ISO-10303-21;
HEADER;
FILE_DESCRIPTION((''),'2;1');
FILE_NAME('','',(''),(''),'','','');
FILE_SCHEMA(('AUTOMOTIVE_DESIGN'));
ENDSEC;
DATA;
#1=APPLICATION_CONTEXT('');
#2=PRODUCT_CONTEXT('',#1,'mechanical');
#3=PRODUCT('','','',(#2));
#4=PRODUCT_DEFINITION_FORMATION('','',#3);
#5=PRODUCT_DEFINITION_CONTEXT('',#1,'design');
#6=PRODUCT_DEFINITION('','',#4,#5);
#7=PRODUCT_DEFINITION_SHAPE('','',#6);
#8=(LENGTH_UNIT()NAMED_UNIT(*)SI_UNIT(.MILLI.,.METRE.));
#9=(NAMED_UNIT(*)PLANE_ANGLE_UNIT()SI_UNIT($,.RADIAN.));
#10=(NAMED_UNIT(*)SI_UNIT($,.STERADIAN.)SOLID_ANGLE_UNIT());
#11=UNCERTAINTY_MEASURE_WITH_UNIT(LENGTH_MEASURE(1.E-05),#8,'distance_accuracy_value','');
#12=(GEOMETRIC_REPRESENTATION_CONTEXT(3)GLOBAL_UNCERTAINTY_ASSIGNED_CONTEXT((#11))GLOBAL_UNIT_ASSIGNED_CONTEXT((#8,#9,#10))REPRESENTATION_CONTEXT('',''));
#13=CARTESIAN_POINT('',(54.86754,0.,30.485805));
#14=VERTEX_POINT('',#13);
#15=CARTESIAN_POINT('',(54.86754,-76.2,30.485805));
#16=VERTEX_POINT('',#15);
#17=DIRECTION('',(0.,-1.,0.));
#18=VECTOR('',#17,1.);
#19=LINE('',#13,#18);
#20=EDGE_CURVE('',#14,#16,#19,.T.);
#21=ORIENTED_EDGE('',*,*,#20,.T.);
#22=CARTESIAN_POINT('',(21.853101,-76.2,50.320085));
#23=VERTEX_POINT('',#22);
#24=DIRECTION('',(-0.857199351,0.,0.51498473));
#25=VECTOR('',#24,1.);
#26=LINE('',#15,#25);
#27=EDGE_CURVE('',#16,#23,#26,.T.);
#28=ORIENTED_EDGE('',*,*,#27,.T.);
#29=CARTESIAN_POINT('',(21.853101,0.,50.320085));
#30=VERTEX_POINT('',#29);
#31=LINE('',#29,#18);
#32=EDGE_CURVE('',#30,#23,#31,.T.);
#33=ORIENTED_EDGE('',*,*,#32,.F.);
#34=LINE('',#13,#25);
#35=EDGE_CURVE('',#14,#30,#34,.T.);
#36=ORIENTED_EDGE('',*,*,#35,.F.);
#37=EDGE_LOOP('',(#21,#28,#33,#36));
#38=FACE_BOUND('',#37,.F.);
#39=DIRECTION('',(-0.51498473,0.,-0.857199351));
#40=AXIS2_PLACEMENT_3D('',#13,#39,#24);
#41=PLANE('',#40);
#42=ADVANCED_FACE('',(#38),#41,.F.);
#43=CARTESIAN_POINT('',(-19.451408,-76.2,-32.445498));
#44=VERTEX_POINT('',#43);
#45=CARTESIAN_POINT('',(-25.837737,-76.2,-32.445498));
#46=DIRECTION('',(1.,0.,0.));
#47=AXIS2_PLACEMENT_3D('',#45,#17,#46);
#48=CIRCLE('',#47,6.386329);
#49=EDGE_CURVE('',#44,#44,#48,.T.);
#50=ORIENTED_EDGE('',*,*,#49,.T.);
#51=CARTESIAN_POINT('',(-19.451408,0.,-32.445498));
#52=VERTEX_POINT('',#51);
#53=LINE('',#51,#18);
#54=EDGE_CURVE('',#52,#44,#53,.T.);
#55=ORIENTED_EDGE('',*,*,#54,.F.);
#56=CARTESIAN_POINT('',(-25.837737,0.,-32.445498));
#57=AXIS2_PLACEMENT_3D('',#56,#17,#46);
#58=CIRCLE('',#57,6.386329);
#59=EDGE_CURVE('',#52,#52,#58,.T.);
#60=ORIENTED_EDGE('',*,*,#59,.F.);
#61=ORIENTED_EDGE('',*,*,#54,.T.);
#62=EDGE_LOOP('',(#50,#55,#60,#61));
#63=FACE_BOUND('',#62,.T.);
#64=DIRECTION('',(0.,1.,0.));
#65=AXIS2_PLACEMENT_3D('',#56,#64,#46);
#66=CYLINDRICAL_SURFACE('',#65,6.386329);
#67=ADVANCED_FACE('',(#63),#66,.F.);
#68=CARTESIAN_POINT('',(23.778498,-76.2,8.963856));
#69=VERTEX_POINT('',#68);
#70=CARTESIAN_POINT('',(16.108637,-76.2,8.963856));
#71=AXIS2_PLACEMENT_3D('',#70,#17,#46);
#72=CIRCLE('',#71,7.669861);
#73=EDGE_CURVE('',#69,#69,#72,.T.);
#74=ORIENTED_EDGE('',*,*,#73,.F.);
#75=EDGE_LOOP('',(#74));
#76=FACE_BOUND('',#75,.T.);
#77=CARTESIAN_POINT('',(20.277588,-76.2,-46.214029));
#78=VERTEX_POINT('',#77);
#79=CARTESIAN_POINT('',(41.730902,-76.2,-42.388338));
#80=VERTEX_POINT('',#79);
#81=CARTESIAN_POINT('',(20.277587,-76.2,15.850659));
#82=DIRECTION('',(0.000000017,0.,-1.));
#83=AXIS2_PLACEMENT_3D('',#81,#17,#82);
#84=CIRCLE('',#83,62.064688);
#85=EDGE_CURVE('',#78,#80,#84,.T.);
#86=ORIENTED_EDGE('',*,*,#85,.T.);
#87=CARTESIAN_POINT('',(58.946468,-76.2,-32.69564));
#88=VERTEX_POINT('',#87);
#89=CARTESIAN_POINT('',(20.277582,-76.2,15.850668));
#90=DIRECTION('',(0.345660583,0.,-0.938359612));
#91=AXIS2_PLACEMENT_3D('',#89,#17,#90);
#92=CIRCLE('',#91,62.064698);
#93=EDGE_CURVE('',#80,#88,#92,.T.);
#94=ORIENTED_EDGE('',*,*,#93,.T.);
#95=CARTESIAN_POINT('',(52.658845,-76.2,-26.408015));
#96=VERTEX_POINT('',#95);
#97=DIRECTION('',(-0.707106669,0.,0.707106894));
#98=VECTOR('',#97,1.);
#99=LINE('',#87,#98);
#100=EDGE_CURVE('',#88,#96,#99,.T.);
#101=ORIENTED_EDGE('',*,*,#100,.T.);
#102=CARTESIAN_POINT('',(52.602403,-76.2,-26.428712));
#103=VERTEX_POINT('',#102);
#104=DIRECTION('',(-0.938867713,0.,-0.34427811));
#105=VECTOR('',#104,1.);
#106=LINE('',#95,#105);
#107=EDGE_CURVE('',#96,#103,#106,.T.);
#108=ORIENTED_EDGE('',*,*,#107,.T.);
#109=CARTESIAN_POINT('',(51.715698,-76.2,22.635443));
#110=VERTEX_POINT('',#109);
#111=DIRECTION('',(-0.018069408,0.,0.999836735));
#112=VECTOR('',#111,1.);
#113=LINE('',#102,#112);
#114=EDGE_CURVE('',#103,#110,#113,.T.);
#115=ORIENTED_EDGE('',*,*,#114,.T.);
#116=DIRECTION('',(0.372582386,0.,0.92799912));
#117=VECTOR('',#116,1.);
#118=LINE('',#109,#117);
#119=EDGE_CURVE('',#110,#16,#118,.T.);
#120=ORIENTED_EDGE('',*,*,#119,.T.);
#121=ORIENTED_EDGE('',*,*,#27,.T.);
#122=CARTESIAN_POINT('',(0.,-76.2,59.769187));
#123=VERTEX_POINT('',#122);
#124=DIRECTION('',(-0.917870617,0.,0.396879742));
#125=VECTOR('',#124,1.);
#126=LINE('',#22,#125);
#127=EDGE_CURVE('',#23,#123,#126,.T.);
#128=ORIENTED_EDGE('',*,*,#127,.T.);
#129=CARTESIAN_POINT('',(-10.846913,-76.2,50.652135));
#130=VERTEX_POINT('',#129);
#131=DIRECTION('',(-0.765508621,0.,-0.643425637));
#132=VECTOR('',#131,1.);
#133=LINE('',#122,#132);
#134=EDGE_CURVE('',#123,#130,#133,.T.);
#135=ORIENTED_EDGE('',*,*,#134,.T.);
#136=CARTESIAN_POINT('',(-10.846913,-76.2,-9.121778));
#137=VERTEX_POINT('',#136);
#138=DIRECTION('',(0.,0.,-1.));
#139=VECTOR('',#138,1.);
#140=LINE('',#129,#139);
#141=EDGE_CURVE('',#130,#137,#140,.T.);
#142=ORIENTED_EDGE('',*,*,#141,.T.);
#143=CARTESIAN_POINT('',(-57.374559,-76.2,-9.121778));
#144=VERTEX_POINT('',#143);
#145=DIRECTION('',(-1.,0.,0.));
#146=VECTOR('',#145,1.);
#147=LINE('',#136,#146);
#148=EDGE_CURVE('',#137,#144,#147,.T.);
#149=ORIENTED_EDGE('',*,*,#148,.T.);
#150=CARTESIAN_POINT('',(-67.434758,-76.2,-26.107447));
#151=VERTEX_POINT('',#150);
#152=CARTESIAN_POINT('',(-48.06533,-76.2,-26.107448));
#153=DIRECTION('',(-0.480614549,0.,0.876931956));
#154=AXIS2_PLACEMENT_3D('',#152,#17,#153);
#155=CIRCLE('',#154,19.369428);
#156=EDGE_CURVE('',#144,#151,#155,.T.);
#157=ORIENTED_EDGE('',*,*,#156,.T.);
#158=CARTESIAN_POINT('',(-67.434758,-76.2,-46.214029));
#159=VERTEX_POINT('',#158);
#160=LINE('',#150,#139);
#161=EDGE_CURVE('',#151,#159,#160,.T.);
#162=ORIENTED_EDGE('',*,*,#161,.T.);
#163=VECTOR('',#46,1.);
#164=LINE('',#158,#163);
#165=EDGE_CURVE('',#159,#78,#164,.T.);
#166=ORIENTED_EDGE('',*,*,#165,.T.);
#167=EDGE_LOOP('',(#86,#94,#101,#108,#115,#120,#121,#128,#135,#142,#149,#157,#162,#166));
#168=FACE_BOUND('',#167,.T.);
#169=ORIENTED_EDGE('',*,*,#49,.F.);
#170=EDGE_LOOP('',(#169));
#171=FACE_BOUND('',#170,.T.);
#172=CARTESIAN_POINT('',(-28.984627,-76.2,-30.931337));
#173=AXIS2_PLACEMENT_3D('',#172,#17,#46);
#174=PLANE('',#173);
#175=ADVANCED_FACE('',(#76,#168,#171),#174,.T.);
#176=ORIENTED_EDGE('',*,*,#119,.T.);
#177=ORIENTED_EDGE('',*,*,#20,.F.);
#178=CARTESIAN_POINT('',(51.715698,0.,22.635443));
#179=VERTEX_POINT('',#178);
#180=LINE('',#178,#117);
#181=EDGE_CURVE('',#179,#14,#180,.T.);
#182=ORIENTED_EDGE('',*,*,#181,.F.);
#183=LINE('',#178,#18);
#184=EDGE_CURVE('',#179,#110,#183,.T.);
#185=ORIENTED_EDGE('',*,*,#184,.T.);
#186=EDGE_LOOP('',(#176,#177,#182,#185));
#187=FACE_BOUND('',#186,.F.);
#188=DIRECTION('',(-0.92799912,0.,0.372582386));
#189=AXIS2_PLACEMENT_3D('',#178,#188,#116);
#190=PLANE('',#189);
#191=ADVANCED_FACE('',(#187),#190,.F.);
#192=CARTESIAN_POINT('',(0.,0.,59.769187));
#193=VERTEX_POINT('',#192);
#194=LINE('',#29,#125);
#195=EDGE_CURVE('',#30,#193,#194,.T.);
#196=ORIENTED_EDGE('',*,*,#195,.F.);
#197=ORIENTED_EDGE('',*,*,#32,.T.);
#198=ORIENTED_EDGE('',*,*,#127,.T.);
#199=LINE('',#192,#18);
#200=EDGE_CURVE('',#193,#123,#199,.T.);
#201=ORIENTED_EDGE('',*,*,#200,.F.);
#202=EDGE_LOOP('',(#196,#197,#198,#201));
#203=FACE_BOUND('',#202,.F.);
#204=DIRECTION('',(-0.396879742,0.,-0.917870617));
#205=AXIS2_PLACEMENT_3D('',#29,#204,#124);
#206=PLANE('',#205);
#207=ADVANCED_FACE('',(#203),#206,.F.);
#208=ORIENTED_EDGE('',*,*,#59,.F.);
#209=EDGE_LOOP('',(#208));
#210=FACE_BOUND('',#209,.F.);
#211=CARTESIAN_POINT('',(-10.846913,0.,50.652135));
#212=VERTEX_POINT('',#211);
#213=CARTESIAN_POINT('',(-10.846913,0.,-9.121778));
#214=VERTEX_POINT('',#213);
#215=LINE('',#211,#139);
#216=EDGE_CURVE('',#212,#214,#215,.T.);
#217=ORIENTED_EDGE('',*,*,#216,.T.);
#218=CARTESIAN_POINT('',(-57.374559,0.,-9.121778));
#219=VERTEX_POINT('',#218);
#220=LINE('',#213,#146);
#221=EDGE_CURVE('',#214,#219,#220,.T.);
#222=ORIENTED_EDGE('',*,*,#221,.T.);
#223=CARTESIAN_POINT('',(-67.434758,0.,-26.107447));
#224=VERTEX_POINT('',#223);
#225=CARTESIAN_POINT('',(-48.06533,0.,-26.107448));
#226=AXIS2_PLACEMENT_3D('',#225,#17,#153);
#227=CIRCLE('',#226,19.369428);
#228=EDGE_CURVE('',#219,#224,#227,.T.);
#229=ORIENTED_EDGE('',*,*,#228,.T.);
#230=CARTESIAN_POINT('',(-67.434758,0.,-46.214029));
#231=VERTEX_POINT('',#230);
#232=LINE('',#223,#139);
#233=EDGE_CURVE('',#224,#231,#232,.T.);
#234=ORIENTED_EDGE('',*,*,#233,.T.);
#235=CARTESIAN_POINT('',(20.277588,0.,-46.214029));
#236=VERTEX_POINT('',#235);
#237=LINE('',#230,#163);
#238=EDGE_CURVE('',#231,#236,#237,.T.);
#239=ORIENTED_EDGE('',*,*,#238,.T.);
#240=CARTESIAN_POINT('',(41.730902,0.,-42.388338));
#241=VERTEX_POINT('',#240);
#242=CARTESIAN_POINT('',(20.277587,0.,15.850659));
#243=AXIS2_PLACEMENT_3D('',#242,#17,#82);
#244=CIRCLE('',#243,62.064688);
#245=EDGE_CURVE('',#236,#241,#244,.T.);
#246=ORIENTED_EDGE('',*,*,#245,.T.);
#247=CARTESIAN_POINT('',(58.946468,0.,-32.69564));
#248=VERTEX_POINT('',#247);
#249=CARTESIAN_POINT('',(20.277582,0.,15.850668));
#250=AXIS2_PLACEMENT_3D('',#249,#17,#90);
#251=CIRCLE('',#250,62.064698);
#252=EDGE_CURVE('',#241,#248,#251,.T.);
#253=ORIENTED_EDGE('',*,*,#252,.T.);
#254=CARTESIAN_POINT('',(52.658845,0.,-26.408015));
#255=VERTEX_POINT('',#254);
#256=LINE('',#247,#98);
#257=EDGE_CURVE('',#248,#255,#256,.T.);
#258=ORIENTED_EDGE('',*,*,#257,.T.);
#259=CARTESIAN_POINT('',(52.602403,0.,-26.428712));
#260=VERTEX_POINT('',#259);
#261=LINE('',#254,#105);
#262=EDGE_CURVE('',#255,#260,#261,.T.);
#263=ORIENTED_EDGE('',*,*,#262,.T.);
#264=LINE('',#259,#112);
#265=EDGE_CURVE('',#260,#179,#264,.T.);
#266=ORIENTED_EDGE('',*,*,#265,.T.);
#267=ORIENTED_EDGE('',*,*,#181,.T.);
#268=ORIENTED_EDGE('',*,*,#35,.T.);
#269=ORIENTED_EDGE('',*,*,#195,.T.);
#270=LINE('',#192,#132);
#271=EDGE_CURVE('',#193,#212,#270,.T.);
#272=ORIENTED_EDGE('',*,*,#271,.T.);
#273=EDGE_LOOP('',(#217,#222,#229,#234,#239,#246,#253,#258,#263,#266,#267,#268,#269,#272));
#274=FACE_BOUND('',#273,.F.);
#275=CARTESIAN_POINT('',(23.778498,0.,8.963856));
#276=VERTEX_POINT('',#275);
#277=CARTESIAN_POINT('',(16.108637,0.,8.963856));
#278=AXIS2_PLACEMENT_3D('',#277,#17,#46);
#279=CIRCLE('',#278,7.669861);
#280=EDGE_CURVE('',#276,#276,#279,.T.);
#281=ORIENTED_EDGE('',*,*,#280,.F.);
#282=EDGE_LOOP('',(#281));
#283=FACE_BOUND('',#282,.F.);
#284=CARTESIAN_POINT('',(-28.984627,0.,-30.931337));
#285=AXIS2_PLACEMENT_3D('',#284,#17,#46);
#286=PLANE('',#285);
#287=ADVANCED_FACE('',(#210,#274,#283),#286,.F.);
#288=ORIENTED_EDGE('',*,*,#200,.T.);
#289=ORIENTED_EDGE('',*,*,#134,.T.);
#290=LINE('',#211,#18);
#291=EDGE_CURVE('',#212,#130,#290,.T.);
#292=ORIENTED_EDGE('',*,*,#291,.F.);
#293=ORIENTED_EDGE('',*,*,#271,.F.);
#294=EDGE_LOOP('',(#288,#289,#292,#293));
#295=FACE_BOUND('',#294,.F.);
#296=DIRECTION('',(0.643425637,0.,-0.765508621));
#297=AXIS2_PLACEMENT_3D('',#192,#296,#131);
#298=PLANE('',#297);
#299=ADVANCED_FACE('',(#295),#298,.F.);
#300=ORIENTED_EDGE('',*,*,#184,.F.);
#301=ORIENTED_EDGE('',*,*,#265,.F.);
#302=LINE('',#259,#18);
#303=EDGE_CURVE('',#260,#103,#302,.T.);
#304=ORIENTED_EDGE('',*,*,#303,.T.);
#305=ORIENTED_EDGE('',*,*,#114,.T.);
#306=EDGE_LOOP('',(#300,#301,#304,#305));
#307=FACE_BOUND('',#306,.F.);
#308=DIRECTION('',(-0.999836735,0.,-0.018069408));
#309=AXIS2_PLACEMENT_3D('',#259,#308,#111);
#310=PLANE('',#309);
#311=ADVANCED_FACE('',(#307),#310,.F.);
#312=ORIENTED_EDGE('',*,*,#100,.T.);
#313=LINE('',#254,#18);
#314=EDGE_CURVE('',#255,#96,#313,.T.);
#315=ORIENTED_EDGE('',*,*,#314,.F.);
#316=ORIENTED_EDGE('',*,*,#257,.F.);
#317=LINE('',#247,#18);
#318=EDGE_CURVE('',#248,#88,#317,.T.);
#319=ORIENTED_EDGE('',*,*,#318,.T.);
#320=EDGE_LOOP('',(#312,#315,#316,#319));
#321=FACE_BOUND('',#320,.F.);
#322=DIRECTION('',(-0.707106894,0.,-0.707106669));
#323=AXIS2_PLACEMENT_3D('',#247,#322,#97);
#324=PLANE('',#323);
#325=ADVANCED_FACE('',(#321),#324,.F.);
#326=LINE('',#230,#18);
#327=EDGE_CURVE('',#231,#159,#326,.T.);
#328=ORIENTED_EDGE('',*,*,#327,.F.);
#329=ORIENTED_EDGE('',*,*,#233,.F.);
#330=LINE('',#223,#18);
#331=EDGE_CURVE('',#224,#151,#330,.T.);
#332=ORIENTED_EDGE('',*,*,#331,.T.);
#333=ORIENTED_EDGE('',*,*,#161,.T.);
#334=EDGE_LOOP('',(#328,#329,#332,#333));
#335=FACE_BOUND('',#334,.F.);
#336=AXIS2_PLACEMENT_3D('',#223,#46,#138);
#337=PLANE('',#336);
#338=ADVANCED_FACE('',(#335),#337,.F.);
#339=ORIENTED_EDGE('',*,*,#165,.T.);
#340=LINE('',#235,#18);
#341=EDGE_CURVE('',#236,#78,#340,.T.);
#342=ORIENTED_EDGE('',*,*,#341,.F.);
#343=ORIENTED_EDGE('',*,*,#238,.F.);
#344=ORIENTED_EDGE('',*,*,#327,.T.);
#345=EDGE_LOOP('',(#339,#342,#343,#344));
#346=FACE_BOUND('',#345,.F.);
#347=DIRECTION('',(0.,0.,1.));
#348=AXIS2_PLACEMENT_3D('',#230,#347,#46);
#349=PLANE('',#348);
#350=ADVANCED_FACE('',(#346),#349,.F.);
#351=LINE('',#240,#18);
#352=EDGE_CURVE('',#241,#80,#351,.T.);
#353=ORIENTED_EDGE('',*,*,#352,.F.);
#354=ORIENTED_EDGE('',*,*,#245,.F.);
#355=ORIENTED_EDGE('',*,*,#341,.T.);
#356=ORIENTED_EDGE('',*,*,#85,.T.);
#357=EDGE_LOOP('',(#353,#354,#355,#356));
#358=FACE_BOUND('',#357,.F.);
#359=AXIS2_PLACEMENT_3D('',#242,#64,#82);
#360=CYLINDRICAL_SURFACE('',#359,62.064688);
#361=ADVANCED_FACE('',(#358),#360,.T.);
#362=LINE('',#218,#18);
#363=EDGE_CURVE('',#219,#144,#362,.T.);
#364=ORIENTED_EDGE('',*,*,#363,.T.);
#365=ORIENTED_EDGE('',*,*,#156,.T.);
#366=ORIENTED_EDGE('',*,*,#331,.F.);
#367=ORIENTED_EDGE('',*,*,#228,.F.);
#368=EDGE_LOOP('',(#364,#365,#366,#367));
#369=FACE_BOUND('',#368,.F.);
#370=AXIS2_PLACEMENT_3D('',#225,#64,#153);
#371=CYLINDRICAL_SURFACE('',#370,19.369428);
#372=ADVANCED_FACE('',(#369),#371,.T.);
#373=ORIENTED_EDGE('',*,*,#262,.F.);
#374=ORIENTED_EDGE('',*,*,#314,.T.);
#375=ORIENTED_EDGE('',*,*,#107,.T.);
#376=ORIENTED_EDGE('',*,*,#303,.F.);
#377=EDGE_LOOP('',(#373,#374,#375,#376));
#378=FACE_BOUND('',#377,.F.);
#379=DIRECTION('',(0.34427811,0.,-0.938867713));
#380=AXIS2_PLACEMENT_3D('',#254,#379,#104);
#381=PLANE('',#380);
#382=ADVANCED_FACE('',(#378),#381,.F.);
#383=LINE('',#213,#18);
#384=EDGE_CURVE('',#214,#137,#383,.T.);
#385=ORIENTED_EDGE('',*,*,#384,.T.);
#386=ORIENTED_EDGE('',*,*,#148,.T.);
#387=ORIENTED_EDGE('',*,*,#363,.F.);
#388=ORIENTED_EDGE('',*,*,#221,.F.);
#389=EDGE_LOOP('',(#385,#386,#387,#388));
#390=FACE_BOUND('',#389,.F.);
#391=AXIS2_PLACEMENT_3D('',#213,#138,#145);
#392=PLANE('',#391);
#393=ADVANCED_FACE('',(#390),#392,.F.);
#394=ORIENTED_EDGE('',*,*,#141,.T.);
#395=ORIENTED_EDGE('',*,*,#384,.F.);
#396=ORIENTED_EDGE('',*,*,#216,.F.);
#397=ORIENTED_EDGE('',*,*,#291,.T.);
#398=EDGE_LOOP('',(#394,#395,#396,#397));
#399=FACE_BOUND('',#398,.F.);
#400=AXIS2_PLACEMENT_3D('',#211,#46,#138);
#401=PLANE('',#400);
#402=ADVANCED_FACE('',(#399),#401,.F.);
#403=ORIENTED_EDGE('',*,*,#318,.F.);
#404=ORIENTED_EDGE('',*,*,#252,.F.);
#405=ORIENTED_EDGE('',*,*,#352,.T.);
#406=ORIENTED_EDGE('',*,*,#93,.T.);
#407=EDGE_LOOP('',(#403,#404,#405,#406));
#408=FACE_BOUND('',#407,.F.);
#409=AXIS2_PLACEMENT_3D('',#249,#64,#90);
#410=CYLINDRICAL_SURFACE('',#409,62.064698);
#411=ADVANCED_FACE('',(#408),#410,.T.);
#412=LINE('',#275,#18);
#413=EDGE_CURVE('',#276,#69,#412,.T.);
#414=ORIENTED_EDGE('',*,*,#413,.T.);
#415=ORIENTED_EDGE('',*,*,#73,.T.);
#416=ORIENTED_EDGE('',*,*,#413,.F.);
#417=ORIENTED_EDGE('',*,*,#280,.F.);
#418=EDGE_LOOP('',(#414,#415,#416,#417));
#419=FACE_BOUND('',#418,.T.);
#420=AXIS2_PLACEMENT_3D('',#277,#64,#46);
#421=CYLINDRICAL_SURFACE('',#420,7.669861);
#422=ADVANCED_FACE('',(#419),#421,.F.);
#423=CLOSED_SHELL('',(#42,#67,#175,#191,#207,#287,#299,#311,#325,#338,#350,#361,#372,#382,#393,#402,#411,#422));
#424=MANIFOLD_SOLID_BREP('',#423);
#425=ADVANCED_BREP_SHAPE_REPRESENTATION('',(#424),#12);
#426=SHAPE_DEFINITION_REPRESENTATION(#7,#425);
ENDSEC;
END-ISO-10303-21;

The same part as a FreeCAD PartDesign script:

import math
import FreeCAD as App
import Part
import Sketcher
from FreeCAD import Vector
Q = App.Units.Quantity

doc = App.newDocument("Part")
body = doc.addObject("PartDesign::Body", "Body")

# Sketch on XZ plane
sketch1 = doc.addObject("Sketcher::SketchObject", "Sketch")
body.addObject(sketch1)
sketch1.AttachmentSupport = (doc.XZ_Plane, [""])
sketch1.MapMode = "FlatFace"
sketch1.addGeometry([
    Part.LineSegment(Vector(-67.434758, -46.214029, 0), Vector(20.277588, -46.214029, 0)),  # 0
    Part.ArcOfCircle(Part.Circle(Vector(20.277587, 15.850659, 0), Vector(0, 0, 1), 62.064688), math.radians(-89.999999), math.radians(-69.777876)),  # 1
    Part.ArcOfCircle(Part.Circle(Vector(20.277582, 15.850668, 0), Vector(0, 0, 1), 62.064698), math.radians(-69.777875), math.radians(-51.461413)),  # 2
    Part.LineSegment(Vector(58.946468, -32.69564, 0), Vector(52.658845, -26.408015, 0)),  # 3
    Part.LineSegment(Vector(52.658845, -26.408015, 0), Vector(52.602403, -26.428712, 0)),  # 4
    Part.LineSegment(Vector(52.602403, -26.428712, 0), Vector(51.715698, 22.635443, 0)),  # 5
    Part.LineSegment(Vector(51.715698, 22.635443, 0), Vector(54.86754, 30.485805, 0)),  # 6
    Part.LineSegment(Vector(54.86754, 30.485805, 0), Vector(21.853101, 50.320085, 0)),  # 7
    Part.LineSegment(Vector(21.853101, 50.320085, 0), Vector(0, 59.769187, 0)),  # 8
    Part.LineSegment(Vector(0, 59.769187, 0), Vector(-10.846913, 50.652135, 0)),  # 9
    Part.LineSegment(Vector(-10.846913, 50.652135, 0), Vector(-10.846913, -9.121778, 0)),  # 10
    Part.LineSegment(Vector(-10.846913, -9.121778, 0), Vector(-57.374559, -9.121778, 0)),  # 11
    Part.ArcOfCircle(Part.Circle(Vector(-48.06533, -26.107448, 0), Vector(0, 0, 1), 19.369428), math.radians(118.725547), math.radians(179.999996)),  # 12
    Part.LineSegment(Vector(-67.434758, -26.107447, 0), Vector(-67.434758, -46.214029, 0)),  # 13
    Part.Circle(Vector(-25.837737, -32.445498, 0), Vector(0, 0, 1), 6.386329),  # 14
    Part.Circle(Vector(16.108637, 8.963856, 0), Vector(0, 0, 1), 7.669861),  # 15
], False)
sketch1.addConstraint([
    Sketcher.Constraint("Tangent", 0, 2, 1, 1),
    Sketcher.Constraint("Tangent", 1, 2, 2, 1),
    Sketcher.Constraint("Coincident", 2, 2, 3, 1),
    Sketcher.Constraint("Coincident", 3, 2, 4, 1),
    Sketcher.Constraint("Coincident", 4, 2, 5, 1),
    Sketcher.Constraint("Coincident", 5, 2, 6, 1),
    Sketcher.Constraint("Coincident", 6, 2, 7, 1),
    Sketcher.Constraint("Coincident", 7, 2, 8, 1),
    Sketcher.Constraint("Coincident", 8, 2, 9, 1),
    Sketcher.Constraint("Coincident", 9, 2, 10, 1),
    Sketcher.Constraint("Coincident", 10, 2, 11, 1),
    Sketcher.Constraint("Coincident", 11, 2, 12, 1),
    Sketcher.Constraint("Tangent", 12, 2, 13, 1),
    Sketcher.Constraint("Coincident", 13, 2, 0, 1),
    Sketcher.Constraint("Horizontal", 0),
    Sketcher.Constraint("Vertical", 10),
    Sketcher.Constraint("Horizontal", 11),
    Sketcher.Constraint("Vertical", 13),
    Sketcher.Constraint("PointOnObject", 8, 2, -2),
    Sketcher.Constraint("Angle", 3, Q("134.999991 deg")),
    Sketcher.Constraint("Radius", 1, 62.064688),
    Sketcher.Constraint("Diameter", 14, 12.772658),
    Sketcher.Constraint("Diameter", 15, 15.339722),
    Sketcher.Constraint("Radius", 2, 62.064698),
    Sketcher.Constraint("Radius", 12, 19.369428),
    Sketcher.Constraint("DistanceY", 13, 2, 13, 1, 20.106582),
    Sketcher.Constraint("DistanceX", -1, 1, 1, 2, 41.730902),
    Sketcher.Constraint("DistanceX", -1, 1, 5, 2, 51.715698),
    Sketcher.Constraint("DistanceX", -1, 1, 7, 2, 21.853101),
    Sketcher.Constraint("DistanceY", 2, 2, 1, 3, 48.546299),
    Sketcher.Constraint("DistanceX", 1, 2, 4, 2, 10.871501),
    Sketcher.Constraint("DistanceX", 9, 2, 1, 3, 31.1245),
    Sketcher.Constraint("DistanceX", 12, 2, 11, 2, 10.060199),
    Sketcher.Constraint("Distance", 6, 8.45945),
    Sketcher.Constraint("Distance", 9, 14.16955),
    Sketcher.Constraint("DistanceX", 0, 1, 0, 2, 87.712346),
    Sketcher.Constraint("DistanceY", 10, 2, 10, 1, 59.773913),
    Sketcher.Constraint("DistanceY", -1, 1, 1, 3, 15.850659),
    Sketcher.Constraint("DistanceX", 12, 3, -1, 1, 48.06533),
    Sketcher.Constraint("DistanceX", -1, 1, 6, 2, 54.86754),
    Sketcher.Constraint("DistanceY", 14, 3, 12, 3, 6.33805),
    Sketcher.Constraint("DistanceX", 14, 3, 2, 3, 46.115319),
    Sketcher.Constraint("DistanceX", 15, 3, 1, 3, 4.16895),
    Sketcher.Constraint("DistanceY", 15, 3, 2, 3, 6.886812),
    Sketcher.Constraint("DistanceY", 3, 2, 15, 3, 35.371871),
    Sketcher.Constraint("DistanceY", 2, 2, 4, 2, 6.266928),
    Sketcher.Constraint("DistanceY", 15, 3, 6, 2, 21.521949),
    Sketcher.Constraint("DistanceY", 6, 2, 7, 2, 19.83428),
])
pad1 = doc.addObject("PartDesign::Pad", "Pad")
body.addObject(pad1)
pad1.Profile = sketch1
pad1.Length = Q("3 in")

doc.recompute()
